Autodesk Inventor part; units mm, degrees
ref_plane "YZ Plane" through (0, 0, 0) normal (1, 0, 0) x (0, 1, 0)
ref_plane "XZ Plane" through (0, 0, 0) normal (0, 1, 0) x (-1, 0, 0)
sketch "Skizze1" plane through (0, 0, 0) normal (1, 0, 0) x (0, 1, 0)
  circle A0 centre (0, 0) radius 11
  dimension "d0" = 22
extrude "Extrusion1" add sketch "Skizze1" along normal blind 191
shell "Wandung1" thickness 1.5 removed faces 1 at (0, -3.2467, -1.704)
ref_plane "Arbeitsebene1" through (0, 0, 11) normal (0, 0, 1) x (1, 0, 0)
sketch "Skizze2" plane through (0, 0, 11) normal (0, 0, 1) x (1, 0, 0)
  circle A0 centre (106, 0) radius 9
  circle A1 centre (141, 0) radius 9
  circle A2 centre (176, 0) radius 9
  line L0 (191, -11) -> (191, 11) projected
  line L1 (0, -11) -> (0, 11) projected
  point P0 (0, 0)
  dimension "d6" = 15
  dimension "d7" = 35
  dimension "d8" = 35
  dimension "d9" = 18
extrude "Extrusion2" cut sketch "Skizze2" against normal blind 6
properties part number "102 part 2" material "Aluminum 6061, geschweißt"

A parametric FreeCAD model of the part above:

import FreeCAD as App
import Part
import Sketcher
Q = App.Units.Quantity


def faces_at(feature, points):
    """Names of the faces that lie closest to the given points."""
    faces = feature.Shape.Faces
    near = lambda p: min(range(len(faces)), key=lambda i: faces[i].distToShape(Part.Vertex(*p))[0])
    return sorted({f"Face{near(p) + 1}" for p in points})

doc = App.newDocument("Part")
body = doc.addObject("PartDesign::Body", "Body")

# Sketch on YZ plane
sketch1 = doc.addObject("Sketcher::SketchObject", "Sketch")
body.addObject(sketch1)
sketch1.AttachmentSupport = (doc.YZ_Plane, [""])
sketch1.MapMode = "FlatFace"
sketch1.addGeometry(Part.Circle(App.Vector(0, 0, 0), App.Vector(0, 0, 1), 11), False)
sketch1.addConstraint([
    Sketcher.Constraint("Coincident", 0, 3, -1, 1),
    Sketcher.Constraint("Diameter", 0, Q("22 mm")),
])
pad1 = doc.addObject("PartDesign::Pad", "Pad")
body.addObject(pad1)
pad1.Profile = sketch1
pad1.Length = 191
doc.recompute()

thickness = doc.addObject("PartDesign::Thickness", "Thickness")
body.addObject(thickness)
thickness.Base = (pad1, faces_at(pad1, [(0, -3.247, -1.704)]))
thickness.Value = 1.5
thickness.Reversed = True
thickness.Join = "Intersection"

# Sketch on XY plane
sketch2 = doc.addObject("Sketcher::SketchObject", "Sketch001")
body.addObject(sketch2)
sketch2.AttachmentSupport = (doc.XY_Plane, [""])
sketch2.MapMode = "FlatFace"
sketch2.AttachmentOffset = App.Placement(App.Vector(0, 0, 11), App.Rotation())
sketch2.addGeometry([
    Part.Circle(App.Vector(106, 0, 0), App.Vector(0, 0, 1), 9),
    Part.Circle(App.Vector(141, 0, 0), App.Vector(0, 0, 1), 9),
    Part.Circle(App.Vector(176, 0, 0), App.Vector(0, 0, 1), 9),
], False)
sketch2.addConstraint([
    Sketcher.Constraint("Equal", 0, 1),
    Sketcher.Constraint("Equal", 1, 2),
    Sketcher.Constraint("PointOnObject", 0, 3, -1),
    Sketcher.Constraint("PointOnObject", 1, 3, -1),
    Sketcher.Constraint("PointOnObject", 2, 3, -1),
    Sketcher.Constraint("Diameter", 0, Q("18 mm")),
    Sketcher.Constraint("DistanceX", 0, 3, 1, 3, Q("35 mm")),
    Sketcher.Constraint("DistanceX", 1, 3, 2, 3, Q("35 mm")),
    Sketcher.Constraint("DistanceX", -1, 1, 0, 3, Q("106 mm")),
])
pocket1 = doc.addObject("PartDesign::Pocket", "Pocket")
body.addObject(pocket1)
pocket1.Profile = sketch2
pocket1.Length = 6

doc.recompute()
